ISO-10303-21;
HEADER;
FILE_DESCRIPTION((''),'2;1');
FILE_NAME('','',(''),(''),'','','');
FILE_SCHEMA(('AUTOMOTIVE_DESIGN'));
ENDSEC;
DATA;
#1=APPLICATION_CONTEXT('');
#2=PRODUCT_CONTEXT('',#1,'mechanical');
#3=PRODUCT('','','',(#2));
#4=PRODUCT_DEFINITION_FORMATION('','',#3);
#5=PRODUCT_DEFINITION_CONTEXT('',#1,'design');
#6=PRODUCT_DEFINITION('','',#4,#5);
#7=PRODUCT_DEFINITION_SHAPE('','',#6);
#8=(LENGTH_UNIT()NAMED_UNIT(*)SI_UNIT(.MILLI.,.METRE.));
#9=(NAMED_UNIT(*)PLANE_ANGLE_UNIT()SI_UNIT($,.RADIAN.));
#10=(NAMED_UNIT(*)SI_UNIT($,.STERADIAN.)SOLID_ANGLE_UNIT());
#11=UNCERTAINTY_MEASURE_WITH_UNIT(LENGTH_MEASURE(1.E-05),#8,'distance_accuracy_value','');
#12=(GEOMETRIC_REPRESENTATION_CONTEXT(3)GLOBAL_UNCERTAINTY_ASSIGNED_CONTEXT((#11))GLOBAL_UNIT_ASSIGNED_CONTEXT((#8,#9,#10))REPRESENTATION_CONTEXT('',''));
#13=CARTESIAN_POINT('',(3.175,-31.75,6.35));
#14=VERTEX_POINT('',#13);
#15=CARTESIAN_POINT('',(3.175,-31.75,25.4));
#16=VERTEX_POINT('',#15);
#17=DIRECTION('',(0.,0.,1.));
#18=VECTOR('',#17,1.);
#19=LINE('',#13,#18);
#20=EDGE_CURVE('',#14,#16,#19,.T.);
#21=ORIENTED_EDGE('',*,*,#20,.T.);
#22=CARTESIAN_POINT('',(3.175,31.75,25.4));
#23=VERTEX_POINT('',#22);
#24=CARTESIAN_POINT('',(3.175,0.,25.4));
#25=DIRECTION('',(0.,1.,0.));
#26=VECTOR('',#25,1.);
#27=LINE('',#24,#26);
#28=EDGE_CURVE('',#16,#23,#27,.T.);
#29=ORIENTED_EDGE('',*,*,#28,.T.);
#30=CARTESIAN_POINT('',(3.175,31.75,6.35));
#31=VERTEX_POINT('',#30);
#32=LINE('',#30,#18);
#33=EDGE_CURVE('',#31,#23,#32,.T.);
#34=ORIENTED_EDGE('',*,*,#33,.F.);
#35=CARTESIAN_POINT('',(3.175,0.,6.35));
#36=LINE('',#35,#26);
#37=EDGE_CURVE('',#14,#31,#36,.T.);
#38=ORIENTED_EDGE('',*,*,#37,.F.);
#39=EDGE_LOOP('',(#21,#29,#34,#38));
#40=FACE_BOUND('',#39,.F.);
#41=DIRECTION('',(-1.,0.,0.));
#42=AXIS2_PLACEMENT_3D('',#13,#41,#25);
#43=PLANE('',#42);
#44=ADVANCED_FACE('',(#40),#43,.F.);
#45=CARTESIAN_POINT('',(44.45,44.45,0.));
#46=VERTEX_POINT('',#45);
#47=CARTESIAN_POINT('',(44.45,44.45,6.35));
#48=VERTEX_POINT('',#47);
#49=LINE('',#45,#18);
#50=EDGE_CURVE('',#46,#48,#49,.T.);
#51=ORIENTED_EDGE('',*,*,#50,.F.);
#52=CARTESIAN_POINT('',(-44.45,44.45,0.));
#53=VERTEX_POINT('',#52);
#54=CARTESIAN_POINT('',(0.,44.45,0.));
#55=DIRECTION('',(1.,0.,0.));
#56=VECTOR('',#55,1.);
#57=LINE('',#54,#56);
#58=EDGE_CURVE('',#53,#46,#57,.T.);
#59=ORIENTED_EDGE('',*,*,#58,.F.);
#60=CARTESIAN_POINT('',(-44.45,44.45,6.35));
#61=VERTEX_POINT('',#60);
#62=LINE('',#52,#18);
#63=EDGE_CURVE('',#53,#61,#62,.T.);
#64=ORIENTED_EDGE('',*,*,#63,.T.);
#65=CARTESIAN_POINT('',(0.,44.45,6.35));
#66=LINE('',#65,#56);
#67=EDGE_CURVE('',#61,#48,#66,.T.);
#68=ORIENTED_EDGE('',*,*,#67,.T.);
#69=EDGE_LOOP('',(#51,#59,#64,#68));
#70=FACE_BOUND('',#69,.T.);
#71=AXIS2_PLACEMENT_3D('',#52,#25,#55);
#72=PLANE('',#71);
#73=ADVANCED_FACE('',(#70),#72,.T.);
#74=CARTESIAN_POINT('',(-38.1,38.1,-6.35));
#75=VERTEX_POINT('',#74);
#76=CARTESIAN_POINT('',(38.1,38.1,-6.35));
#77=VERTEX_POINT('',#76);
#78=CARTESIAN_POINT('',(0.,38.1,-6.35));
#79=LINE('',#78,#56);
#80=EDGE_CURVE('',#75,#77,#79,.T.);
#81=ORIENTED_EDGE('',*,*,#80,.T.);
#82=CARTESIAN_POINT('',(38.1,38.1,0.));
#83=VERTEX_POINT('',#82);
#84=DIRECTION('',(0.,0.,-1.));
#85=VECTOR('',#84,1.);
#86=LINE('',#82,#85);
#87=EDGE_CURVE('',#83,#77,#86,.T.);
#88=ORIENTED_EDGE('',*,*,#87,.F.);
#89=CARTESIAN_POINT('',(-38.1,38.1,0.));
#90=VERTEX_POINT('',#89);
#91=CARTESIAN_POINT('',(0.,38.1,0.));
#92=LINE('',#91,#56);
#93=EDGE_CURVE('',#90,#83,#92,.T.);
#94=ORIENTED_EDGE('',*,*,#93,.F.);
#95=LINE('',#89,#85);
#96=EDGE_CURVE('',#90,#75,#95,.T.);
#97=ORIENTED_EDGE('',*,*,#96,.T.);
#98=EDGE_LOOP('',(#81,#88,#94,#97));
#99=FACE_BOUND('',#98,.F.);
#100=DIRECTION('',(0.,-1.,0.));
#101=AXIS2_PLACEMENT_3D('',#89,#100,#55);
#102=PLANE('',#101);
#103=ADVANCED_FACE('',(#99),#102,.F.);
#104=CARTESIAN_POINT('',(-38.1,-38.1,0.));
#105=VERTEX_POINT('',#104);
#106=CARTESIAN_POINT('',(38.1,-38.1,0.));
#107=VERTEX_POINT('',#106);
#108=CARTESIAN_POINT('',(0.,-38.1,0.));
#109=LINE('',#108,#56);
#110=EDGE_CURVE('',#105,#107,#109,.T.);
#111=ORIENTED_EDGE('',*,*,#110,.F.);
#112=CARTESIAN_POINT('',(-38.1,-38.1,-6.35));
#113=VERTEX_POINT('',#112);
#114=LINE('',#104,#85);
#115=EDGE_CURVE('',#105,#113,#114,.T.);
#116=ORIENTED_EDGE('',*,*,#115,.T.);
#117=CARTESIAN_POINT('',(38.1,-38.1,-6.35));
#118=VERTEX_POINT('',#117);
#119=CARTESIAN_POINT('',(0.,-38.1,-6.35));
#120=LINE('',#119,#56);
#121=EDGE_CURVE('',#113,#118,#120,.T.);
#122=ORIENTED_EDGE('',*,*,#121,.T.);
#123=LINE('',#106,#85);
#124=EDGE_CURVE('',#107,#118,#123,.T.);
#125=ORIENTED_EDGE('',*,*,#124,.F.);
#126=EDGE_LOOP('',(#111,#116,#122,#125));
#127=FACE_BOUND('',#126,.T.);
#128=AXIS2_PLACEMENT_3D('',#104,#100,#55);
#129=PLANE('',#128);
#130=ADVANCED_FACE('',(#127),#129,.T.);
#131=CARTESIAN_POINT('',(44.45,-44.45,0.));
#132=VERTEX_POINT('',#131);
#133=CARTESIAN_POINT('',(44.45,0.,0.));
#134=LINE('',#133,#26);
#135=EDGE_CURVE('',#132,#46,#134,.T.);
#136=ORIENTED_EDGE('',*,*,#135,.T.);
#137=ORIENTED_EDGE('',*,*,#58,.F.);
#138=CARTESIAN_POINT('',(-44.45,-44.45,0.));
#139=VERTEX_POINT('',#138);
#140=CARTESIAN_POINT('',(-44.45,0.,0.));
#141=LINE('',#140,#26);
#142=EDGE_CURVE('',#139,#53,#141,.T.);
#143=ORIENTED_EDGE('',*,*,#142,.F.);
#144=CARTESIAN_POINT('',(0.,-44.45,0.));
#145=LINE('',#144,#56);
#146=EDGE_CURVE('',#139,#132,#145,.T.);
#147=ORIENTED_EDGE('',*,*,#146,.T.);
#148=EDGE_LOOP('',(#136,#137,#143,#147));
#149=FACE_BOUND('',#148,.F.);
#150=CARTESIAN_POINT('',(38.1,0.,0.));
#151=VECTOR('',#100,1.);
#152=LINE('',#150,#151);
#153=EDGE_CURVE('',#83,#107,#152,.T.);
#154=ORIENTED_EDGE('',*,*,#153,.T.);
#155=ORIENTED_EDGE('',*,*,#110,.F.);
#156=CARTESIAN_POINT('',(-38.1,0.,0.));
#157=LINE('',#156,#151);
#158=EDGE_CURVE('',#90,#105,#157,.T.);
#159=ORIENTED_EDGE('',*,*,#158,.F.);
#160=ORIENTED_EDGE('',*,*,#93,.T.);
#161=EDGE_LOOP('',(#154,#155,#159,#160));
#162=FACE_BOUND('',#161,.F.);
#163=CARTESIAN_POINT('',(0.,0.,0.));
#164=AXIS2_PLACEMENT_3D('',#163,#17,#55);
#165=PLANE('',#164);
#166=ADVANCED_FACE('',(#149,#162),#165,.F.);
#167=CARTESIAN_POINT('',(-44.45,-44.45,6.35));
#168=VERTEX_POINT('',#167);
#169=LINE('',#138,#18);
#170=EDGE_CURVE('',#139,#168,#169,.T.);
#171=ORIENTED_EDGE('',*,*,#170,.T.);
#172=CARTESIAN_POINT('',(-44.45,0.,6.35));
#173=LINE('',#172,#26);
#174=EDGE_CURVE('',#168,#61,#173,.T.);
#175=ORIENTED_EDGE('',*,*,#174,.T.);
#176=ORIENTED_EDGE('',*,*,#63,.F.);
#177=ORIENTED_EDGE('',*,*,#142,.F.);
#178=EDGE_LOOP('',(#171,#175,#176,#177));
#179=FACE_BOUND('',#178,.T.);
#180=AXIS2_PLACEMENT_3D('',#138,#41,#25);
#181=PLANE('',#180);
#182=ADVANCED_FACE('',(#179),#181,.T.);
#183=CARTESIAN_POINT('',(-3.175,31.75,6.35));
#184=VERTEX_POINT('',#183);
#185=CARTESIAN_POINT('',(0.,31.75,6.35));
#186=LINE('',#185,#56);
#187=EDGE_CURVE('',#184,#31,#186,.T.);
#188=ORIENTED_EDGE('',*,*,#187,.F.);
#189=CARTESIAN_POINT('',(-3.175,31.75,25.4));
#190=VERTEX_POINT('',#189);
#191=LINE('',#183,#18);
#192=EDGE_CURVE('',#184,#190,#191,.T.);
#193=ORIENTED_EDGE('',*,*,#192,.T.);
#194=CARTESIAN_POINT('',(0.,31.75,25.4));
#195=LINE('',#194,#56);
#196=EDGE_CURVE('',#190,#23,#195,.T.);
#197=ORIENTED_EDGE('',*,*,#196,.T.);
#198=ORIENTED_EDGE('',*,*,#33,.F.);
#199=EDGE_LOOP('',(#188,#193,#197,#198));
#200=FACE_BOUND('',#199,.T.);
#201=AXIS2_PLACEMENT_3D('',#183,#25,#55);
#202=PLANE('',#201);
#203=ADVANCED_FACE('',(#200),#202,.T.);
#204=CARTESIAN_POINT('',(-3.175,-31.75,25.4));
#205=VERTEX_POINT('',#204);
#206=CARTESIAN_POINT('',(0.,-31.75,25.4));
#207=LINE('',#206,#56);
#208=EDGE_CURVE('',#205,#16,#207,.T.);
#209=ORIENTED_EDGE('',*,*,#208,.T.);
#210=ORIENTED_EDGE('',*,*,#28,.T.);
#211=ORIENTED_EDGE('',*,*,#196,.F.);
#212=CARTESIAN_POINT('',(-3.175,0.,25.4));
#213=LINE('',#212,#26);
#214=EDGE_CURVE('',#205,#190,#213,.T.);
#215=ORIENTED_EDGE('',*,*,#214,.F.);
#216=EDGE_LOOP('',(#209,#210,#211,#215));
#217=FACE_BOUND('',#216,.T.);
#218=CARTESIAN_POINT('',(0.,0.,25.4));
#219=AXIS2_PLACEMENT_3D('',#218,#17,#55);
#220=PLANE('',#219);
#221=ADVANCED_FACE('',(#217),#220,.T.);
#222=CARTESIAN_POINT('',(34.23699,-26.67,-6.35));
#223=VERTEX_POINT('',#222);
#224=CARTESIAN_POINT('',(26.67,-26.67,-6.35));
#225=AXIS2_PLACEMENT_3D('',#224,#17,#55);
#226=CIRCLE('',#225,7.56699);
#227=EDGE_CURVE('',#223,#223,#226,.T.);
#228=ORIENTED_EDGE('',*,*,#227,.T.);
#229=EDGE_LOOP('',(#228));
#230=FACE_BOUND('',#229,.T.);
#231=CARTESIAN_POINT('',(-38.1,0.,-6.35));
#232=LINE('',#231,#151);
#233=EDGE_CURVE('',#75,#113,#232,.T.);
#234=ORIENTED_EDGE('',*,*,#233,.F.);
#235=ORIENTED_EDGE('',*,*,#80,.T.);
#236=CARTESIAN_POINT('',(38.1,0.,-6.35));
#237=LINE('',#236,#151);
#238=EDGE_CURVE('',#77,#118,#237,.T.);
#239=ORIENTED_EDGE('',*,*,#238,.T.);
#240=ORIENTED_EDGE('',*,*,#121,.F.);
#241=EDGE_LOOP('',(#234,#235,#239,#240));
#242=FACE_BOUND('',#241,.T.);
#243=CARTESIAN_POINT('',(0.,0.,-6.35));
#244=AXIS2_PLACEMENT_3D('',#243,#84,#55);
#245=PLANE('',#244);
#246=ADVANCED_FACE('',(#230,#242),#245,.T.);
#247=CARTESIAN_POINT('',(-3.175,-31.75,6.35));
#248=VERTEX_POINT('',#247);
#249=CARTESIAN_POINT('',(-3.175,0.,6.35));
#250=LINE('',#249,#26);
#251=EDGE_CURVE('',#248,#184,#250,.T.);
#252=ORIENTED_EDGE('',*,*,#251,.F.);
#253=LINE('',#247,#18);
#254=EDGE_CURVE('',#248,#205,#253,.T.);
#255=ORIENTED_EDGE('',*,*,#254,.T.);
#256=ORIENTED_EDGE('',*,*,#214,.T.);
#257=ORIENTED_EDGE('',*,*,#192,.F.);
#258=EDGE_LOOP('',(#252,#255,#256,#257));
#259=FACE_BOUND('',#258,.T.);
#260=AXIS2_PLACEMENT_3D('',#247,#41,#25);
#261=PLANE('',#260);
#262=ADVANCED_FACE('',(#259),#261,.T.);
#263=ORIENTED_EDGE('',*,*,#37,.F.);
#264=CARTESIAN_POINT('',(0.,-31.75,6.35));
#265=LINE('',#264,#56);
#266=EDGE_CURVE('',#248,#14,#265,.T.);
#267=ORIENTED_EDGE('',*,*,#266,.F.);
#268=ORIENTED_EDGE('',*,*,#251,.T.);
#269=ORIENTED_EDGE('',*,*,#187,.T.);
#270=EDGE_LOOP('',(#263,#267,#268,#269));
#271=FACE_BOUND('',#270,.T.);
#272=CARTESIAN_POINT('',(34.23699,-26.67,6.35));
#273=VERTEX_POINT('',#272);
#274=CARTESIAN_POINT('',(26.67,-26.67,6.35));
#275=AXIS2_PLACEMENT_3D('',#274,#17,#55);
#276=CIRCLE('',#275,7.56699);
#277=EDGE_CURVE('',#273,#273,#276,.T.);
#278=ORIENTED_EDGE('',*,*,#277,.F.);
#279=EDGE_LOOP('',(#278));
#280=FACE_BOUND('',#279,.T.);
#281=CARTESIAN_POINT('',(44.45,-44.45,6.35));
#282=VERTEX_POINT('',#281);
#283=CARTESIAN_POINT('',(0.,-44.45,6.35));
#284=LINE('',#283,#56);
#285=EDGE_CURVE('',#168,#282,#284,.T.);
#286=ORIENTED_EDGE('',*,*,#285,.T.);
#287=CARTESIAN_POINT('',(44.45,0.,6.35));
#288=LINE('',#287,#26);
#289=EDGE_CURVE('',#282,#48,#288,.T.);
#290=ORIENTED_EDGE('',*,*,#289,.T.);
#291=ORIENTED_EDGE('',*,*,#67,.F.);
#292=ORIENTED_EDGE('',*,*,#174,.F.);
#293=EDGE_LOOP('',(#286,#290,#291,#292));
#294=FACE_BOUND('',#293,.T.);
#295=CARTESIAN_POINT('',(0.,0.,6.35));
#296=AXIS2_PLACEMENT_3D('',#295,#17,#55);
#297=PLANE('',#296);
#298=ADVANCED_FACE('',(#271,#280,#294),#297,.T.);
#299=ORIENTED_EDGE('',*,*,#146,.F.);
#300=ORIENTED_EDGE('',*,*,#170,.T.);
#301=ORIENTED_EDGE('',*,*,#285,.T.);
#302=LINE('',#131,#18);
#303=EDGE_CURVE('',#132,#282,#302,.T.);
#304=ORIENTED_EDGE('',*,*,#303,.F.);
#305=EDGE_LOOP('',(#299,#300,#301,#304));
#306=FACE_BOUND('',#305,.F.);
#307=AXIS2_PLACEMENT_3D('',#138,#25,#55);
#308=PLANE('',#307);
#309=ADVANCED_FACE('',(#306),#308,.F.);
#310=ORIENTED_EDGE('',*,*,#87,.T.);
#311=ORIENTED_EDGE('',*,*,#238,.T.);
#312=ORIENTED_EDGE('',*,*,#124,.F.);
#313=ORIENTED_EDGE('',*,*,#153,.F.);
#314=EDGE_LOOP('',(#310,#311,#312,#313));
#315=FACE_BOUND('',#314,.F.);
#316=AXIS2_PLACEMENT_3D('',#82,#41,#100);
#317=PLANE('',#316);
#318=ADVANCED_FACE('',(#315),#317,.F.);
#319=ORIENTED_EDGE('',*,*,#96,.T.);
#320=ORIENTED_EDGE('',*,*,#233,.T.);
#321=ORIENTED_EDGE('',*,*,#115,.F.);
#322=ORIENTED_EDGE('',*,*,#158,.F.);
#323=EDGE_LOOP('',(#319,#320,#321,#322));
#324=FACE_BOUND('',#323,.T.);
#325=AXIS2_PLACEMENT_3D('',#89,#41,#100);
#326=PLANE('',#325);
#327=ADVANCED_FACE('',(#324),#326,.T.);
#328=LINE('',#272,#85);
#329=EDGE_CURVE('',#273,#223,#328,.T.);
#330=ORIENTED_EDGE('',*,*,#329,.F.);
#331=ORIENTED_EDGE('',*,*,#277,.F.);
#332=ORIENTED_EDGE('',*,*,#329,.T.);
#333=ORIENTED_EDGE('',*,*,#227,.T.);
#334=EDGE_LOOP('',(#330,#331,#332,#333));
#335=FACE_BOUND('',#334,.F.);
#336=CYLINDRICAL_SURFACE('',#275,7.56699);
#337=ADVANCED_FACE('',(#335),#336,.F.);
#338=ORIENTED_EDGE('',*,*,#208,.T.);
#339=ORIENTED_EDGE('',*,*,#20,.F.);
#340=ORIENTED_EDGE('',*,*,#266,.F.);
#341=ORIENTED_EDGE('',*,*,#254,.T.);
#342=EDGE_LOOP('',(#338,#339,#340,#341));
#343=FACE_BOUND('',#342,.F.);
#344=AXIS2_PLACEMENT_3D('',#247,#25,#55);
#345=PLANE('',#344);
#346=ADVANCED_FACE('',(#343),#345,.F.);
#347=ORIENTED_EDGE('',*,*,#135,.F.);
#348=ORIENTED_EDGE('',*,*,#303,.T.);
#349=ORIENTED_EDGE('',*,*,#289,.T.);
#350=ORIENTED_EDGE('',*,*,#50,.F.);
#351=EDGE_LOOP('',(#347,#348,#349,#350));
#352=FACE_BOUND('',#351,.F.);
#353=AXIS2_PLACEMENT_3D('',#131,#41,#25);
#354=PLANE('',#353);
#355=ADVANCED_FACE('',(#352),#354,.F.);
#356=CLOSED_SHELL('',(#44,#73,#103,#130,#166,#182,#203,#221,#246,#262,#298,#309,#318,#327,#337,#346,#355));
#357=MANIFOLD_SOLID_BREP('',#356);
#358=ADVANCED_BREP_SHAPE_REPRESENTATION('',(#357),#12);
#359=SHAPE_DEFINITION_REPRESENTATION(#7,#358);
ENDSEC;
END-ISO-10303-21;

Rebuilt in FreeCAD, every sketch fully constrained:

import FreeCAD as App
import Part
import Sketcher

V = App.Vector
Q = App.Units.Quantity

doc = App.newDocument("Part")
body = doc.addObject("PartDesign::Body", "Body")

sketch1 = body.newObject("Sketcher::SketchObject", "Sketch")
sketch1.AttachmentSupport = (doc.getObject("XY_Plane"), [""])
sketch1.MapMode = "FlatFace"
sketch1.addGeometry(Part.LineSegment(V(-44, 44, 0), V(-44, -44, 0)), False)
sketch1.addGeometry(Part.LineSegment(V(-44, -44, 0), V(44, -44, 0)), False)
sketch1.addGeometry(Part.LineSegment(V(44, -44, 0), V(44, 44, 0)), False)
sketch1.addGeometry(Part.LineSegment(V(44, 44, 0), V(-44, 44, 0)), False)
sketch1.addConstraint(Sketcher.Constraint("Coincident", 0, 2, 1, 1))
sketch1.addConstraint(Sketcher.Constraint("Coincident", 1, 2, 2, 1))
sketch1.addConstraint(Sketcher.Constraint("Coincident", 2, 2, 3, 1))
sketch1.addConstraint(Sketcher.Constraint("Coincident", 3, 2, 0, 1))
sketch1.addConstraint(Sketcher.Constraint("Vertical", 0))
sketch1.addConstraint(Sketcher.Constraint("Horizontal", 1))
sketch1.addConstraint(Sketcher.Constraint("Vertical", 2))
sketch1.addConstraint(Sketcher.Constraint("Horizontal", 3))
sketch1.addConstraint(Sketcher.Constraint("Symmetric", 0, 2, 2, 2, -1, 1))
sketch1.addConstraint(Sketcher.Constraint("Equal", 3, 0))
sketch1.addConstraint(Sketcher.Constraint("DistanceX", 1, 1, 1, 2, Q("3.5 in")))
pad1 = body.newObject("PartDesign::Pad", "Pad")
pad1.Profile = sketch1
pad1.Length = Q("0.25 in")

sketch2 = body.newObject("Sketcher::SketchObject", "Sketch001")
sketch2.AttachmentSupport = (doc.getObject("XY_Plane"), [""])
sketch2.MapMode = "FlatFace"
sketch2.addGeometry(Part.LineSegment(V(-38, -38, 0), V(-38, 38, 0)), False)
sketch2.addGeometry(Part.LineSegment(V(-38, 38, 0), V(38, 38, 0)), False)
sketch2.addGeometry(Part.LineSegment(V(38, 38, 0), V(38, -38, 0)), False)
sketch2.addGeometry(Part.LineSegment(V(38, -38, 0), V(-38, -38, 0)), False)
sketch2.addConstraint(Sketcher.Constraint("Coincident", 0, 2, 1, 1))
sketch2.addConstraint(Sketcher.Constraint("Coincident", 1, 2, 2, 1))
sketch2.addConstraint(Sketcher.Constraint("Coincident", 2, 2, 3, 1))
sketch2.addConstraint(Sketcher.Constraint("Coincident", 3, 2, 0, 1))
sketch2.addConstraint(Sketcher.Constraint("Vertical", 0))
sketch2.addConstraint(Sketcher.Constraint("Horizontal", 1))
sketch2.addConstraint(Sketcher.Constraint("Vertical", 2))
sketch2.addConstraint(Sketcher.Constraint("Horizontal", 3))
sketch2.addConstraint(Sketcher.Constraint("Symmetric", 0, 2, 2, 2, -1, 1))
sketch2.addConstraint(Sketcher.Constraint("Equal", 3, 0))
sketch2.addConstraint(Sketcher.Constraint("DistanceX", 1, 1, 1, 2, Q("3 in")))
pad2 = body.newObject("PartDesign::Pad", "Pad001")
pad2.Profile = sketch2
pad2.Length = Q("0.25 in")
pad2.Reversed = True

sketch3 = body.newObject("Sketcher::SketchObject", "Sketch002")
sketch3.AttachmentSupport = (doc.getObject("XY_Plane"), [""])
sketch3.MapMode = "FlatFace"
sketch3.AttachmentOffset = App.Placement(V(0, 0, 0.25 * 25.4), App.Rotation())
sketch3.addGeometry(Part.LineSegment(V(-3, 32, 0), V(-3, -32, 0)), False)
sketch3.addGeometry(Part.LineSegment(V(-3, -32, 0), V(3, -32, 0)), False)
sketch3.addGeometry(Part.LineSegment(V(3, -32, 0), V(3, 32, 0)), False)
sketch3.addGeometry(Part.LineSegment(V(3, 32, 0), V(-3, 32, 0)), False)
sketch3.addConstraint(Sketcher.Constraint("Coincident", 0, 2, 1, 1))
sketch3.addConstraint(Sketcher.Constraint("Coincident", 1, 2, 2, 1))
sketch3.addConstraint(Sketcher.Constraint("Coincident", 2, 2, 3, 1))
sketch3.addConstraint(Sketcher.Constraint("Coincident", 3, 2, 0, 1))
sketch3.addConstraint(Sketcher.Constraint("Vertical", 0))
sketch3.addConstraint(Sketcher.Constraint("Horizontal", 1))
sketch3.addConstraint(Sketcher.Constraint("Vertical", 2))
sketch3.addConstraint(Sketcher.Constraint("Horizontal", 3))
sketch3.addConstraint(Sketcher.Constraint("Symmetric", 0, 2, 2, 2, -1, 1))
sketch3.addConstraint(Sketcher.Constraint("DistanceY", 0, 2, 0, 1, Q("2.5 in")))
sketch3.addConstraint(Sketcher.Constraint("DistanceX", 1, 1, 1, 2, Q("0.25 in")))
pad3 = body.newObject("PartDesign::Pad", "Pad002")
pad3.Profile = sketch3
pad3.Length = Q("0.75 in")

sketch4 = body.newObject("Sketcher::SketchObject", "Sketch003")
sketch4.AttachmentSupport = (doc.getObject("XY_Plane"), [""])
sketch4.MapMode = "FlatFace"
sketch4.AttachmentOffset = App.Placement(V(0, 0, 0.25 * 25.4), App.Rotation())
sketch4.addGeometry(Part.Circle(V(27, -27, 0), V(0, 0, 1), 8), False)
sketch4.addConstraint(Sketcher.Constraint("DistanceX", -1, 1, 0, 3, Q("1.05 in")))
sketch4.addConstraint(Sketcher.Constraint("DistanceY", 0, 3, -1, 1, Q("1.05 in")))
sketch4.addConstraint(Sketcher.Constraint("Diameter", 0, Q("15.13398 mm")))
pocket1 = body.newObject("PartDesign::Pocket", "Pocket")
pocket1.Profile = sketch4
pocket1.Length = Q("1 in")

doc.recompute()
